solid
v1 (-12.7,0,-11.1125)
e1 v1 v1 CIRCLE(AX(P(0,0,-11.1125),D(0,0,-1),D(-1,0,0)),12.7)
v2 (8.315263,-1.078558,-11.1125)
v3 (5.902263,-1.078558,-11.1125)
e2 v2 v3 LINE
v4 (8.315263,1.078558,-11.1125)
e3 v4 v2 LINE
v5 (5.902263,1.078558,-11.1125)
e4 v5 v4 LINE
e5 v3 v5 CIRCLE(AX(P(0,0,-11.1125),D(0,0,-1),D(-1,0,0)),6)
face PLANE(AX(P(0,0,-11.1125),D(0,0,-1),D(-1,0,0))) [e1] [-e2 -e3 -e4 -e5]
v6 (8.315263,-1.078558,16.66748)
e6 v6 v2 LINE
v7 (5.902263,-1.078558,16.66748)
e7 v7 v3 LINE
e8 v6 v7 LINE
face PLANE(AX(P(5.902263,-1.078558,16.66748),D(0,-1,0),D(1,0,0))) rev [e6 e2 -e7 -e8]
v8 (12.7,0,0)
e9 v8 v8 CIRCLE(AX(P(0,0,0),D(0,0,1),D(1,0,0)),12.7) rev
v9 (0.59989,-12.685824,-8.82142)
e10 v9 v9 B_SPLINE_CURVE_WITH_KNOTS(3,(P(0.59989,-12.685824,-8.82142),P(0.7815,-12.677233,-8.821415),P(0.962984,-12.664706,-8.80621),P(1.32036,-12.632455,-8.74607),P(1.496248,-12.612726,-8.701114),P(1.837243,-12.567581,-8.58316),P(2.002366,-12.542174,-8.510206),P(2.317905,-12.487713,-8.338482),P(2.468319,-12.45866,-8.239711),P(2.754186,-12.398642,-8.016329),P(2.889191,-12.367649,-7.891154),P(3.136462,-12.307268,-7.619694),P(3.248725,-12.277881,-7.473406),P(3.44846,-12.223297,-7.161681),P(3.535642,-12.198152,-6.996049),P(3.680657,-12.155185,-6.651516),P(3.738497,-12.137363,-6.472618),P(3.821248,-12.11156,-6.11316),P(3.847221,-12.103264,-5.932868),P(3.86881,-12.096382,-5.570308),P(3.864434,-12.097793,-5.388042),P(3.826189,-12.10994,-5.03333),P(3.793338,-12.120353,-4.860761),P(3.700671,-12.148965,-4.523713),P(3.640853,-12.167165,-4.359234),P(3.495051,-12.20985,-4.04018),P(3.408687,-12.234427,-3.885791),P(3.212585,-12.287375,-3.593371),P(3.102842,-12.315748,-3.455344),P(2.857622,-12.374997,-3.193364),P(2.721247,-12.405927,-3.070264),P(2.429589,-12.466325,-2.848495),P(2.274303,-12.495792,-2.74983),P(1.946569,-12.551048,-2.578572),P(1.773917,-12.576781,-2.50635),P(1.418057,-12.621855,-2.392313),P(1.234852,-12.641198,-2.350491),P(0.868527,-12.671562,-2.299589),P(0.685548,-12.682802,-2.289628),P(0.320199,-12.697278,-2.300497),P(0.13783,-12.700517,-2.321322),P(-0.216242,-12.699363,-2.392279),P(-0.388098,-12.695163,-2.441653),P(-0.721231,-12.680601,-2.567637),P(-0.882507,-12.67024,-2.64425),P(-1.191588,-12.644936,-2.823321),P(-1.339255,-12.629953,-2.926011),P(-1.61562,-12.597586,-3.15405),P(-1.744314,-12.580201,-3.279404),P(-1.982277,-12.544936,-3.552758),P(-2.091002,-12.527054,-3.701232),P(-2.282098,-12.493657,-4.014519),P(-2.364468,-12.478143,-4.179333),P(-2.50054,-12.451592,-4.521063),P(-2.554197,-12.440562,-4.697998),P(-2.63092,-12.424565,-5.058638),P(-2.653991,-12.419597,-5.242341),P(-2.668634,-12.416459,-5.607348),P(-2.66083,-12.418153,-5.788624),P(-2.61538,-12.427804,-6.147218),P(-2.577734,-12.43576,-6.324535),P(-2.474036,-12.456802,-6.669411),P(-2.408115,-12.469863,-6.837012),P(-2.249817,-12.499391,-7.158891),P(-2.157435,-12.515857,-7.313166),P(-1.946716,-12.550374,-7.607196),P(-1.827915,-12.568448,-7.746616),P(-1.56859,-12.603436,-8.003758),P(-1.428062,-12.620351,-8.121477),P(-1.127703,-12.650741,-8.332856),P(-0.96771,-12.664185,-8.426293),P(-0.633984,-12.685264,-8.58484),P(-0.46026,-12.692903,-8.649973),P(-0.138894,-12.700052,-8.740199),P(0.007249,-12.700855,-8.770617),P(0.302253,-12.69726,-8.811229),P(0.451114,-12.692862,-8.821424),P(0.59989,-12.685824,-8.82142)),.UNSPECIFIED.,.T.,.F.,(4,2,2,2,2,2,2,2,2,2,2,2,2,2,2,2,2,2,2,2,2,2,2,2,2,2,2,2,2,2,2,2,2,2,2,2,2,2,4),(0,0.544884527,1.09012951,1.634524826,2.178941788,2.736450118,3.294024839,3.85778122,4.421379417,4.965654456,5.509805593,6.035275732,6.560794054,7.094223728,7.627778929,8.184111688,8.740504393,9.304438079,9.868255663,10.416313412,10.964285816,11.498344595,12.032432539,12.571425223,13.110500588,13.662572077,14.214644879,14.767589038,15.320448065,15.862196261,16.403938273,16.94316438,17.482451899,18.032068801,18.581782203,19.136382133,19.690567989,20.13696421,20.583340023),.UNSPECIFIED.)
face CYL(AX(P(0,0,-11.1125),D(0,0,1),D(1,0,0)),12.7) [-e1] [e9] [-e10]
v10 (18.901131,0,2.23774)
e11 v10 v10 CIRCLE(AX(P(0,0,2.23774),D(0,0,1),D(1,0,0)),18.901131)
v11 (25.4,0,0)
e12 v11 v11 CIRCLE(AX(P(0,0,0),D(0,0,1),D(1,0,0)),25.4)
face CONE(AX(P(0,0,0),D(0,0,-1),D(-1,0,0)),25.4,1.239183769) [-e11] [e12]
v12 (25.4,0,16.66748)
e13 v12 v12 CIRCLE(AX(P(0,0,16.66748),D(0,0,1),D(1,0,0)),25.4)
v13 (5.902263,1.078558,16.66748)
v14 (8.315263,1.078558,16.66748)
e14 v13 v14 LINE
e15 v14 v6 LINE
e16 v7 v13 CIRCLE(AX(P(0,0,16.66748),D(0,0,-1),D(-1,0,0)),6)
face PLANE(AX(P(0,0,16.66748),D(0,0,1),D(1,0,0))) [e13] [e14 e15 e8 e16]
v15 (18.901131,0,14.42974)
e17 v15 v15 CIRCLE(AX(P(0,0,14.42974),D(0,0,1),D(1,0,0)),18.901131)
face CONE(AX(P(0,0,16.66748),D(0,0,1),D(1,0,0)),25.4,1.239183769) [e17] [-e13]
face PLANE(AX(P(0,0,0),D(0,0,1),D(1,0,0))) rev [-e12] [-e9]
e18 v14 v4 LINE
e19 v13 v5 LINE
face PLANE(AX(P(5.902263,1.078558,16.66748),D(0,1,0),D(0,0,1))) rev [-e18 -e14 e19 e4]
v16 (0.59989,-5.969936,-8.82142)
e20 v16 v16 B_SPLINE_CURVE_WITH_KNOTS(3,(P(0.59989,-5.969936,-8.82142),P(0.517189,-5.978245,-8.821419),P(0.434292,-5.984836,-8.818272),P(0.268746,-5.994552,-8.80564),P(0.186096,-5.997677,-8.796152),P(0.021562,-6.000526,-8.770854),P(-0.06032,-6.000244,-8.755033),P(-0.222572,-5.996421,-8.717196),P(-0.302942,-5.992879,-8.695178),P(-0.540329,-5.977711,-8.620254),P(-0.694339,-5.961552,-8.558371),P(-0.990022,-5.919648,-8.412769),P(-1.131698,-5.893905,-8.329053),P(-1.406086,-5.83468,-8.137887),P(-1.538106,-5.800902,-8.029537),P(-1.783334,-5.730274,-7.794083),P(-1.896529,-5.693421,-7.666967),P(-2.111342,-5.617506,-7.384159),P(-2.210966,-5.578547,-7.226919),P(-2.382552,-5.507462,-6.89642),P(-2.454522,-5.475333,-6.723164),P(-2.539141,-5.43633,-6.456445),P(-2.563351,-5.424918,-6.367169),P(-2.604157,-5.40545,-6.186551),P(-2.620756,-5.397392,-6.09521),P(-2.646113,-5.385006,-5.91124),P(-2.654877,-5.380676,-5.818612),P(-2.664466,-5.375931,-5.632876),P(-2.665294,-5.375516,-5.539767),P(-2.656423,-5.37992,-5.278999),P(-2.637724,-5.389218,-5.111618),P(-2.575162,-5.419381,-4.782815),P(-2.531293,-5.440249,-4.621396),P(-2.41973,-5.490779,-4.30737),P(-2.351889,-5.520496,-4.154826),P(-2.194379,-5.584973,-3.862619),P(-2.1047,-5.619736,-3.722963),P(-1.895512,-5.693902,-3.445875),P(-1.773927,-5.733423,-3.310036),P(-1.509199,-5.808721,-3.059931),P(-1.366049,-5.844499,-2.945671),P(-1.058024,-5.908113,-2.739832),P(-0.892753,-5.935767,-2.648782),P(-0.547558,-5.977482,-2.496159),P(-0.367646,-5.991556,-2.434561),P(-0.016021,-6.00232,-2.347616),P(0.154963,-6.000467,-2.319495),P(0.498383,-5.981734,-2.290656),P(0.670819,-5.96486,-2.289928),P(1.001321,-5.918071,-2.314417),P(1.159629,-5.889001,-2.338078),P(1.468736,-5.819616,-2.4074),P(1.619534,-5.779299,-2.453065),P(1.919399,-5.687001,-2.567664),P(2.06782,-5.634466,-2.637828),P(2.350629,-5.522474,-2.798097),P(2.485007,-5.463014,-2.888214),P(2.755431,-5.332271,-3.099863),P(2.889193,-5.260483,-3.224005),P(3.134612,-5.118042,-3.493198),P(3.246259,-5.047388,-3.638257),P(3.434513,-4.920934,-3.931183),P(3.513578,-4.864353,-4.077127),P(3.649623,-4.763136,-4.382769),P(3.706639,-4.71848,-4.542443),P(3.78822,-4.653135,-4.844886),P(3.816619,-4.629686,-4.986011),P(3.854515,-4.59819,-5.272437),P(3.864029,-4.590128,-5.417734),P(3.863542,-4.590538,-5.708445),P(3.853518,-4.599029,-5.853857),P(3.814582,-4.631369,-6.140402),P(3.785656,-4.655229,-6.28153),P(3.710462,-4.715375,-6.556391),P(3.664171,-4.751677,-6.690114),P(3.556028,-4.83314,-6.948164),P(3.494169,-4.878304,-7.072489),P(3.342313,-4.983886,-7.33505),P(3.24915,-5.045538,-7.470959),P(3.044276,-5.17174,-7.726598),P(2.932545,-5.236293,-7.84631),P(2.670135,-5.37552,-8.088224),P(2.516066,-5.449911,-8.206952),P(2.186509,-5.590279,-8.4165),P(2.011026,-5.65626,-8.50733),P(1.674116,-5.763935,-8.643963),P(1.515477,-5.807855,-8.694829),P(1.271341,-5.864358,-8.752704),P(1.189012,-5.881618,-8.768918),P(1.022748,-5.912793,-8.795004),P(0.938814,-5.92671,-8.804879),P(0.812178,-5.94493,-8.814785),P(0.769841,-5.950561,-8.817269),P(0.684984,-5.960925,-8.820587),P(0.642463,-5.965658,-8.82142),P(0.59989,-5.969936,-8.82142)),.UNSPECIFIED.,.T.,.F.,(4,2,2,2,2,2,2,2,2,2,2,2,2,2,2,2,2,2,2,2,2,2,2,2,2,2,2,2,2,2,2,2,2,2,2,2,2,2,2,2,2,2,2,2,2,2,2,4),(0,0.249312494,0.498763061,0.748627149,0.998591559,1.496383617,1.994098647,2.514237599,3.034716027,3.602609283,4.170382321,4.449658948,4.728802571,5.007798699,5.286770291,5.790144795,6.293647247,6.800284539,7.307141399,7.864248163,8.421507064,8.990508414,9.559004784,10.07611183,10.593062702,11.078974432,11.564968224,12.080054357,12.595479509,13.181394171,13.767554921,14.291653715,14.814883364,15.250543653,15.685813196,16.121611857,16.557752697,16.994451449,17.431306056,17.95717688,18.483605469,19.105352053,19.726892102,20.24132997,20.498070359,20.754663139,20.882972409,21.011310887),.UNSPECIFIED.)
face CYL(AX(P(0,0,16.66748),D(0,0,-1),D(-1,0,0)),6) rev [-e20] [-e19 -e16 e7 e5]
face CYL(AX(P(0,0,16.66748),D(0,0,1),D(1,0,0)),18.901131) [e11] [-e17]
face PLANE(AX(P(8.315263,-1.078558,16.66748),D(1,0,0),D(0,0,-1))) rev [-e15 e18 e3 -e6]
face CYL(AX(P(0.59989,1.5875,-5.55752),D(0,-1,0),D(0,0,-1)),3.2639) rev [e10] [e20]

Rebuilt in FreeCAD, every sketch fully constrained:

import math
import FreeCAD as App
import Part
import Sketcher

V = App.Vector
Q = App.Units.Quantity

doc = App.newDocument("Part")
body = doc.addObject("PartDesign::Body", "Body")

sketch1 = body.newObject("Sketcher::SketchObject", "Sketch")
sketch1.AttachmentSupport = (doc.getObject("XY_Plane"), [""])
sketch1.MapMode = "FlatFace"
sketch1.addGeometry(Part.Circle(V(0, 0, 0), V(0, 0, 1), 25), False)
sketch1.addConstraint([
    Sketcher.Constraint("Coincident", 0, 3, -1, 1),
    Sketcher.Constraint("Diameter", 0, Q("2 in")),
])
pad1 = body.newObject("PartDesign::Pad", "Pad")
pad1.Profile = sketch1
pad1.Length = Q("0.6562 in")

sketch2 = body.newObject("Sketcher::SketchObject", "Sketch001")
sketch2.AttachmentSupport = (doc.getObject("XY_Plane"), [""])
sketch2.MapMode = "FlatFace"
sketch2.addGeometry(Part.Circle(V(0, 0, 0), V(0, 0, 1), 13), False)
sketch2.addConstraint([
    Sketcher.Constraint("Coincident", 0, 3, -1, 1),
    Sketcher.Constraint("Diameter", 0, Q("1 in")),
])
pad2 = body.newObject("PartDesign::Pad", "Pad001")
pad2.Profile = sketch2
pad2.Length = Q("0.4375 in")
pad2.Reversed = True

sketch3 = body.newObject("Sketcher::SketchObject", "Sketch002")
sketch3.AttachmentSupport = (doc.getObject("XY_Plane"), [""])
sketch3.MapMode = "FlatFace"
sketch3.AttachmentOffset = App.Placement(V(0, 0, -0.4375 * 25.4), App.Rotation())
sketch3.addGeometry([
    Part.LineSegment(V(8.3, -1.1, 0), V(5.9, -1.1, 0)),
    Part.ArcOfCircle(Part.Circle(V(0, 0, 0), V(0, 0, 1), 6), math.radians(10), math.radians(350)),
    Part.LineSegment(V(5.9, 1.1, 0), V(8.3, 1.1, 0)),
    Part.LineSegment(V(8.3, 1.1, 0), V(8.3, -1.1, 0)),
], False)
sketch3.addConstraint([
    Sketcher.Constraint("Coincident", 0, 2, 1, 2),
    Sketcher.Constraint("Coincident", 1, 1, 2, 1),
    Sketcher.Constraint("Coincident", 2, 2, 3, 1),
    Sketcher.Constraint("Coincident", 3, 2, 0, 1),
    Sketcher.Constraint("Horizontal", 0),
    Sketcher.Constraint("Horizontal", 2),
    Sketcher.Constraint("Vertical", 3),
    Sketcher.Constraint("Coincident", 1, 3, -1, 1),
    Sketcher.Constraint("Vertical", 0, 2, 1, 1),
    Sketcher.Constraint("DistanceX", 0, 2, 0, 1, Q("0.095 in")),
    Sketcher.Constraint("Radius", 1, 6.0),
    Sketcher.Constraint("DistanceY", 3, 2, 3, 1, 2.157116),
])
pocket1 = body.newObject("PartDesign::Pocket", "Pocket")
pocket1.Profile = sketch3
pocket1.Type = "ThroughAll"
pocket1.Reversed = True

sketch4 = body.newObject("Sketcher::SketchObject", "Sketch003")
sketch4.AttachmentSupport = (doc.getObject("XZ_Plane"), [""])
sketch4.MapMode = "FlatFace"
sketch4.AttachmentOffset = App.Placement(V(0, 0, 0.375 * 25.4), App.Rotation())
sketch4.addGeometry(Part.Circle(V(0.6, -5.6, 0), V(0, 0, 1), 3.3), False)
sketch4.addConstraint([
    Sketcher.Constraint("Diameter", 0, Q("0.257 in")),
    Sketcher.Constraint("DistanceY", 0, 3, -1, 1, Q("0.2188 in")),
    Sketcher.Constraint("DistanceX", -1, 1, 0, 3, 0.59989),
])
pocket2 = body.newObject("PartDesign::Pocket", "Pocket001")
pocket2.Profile = sketch4
pocket2.Type = "TwoLengths"
pocket2.Length = Q("0.4375 in")
pocket2.Length2 = Q("0.4375 in")

sketch5 = body.newObject("Sketcher::SketchObject", "Sketch004")
sketch5.AttachmentSupport = (doc.getObject("YZ_Plane"), [""])
sketch5.MapMode = "FlatFace"
sketch5.addGeometry([
    Part.LineSegment(V(25, 0, 0), V(25, 17, 0)),
    Part.LineSegment(V(25, 17, 0), V(19, 14, 0)),
    Part.LineSegment(V(19, 14, 0), V(19, 2, 0)),
    Part.LineSegment(V(19, 2, 0), V(25, 0, 0)),
], False)
sketch5.addConstraint([
    Sketcher.Constraint("Coincident", 0, 2, 1, 1),
    Sketcher.Constraint("Coincident", 1, 2, 2, 1),
    Sketcher.Constraint("Coincident", 2, 2, 3, 1),
    Sketcher.Constraint("Coincident", 3, 2, 0, 1),
    Sketcher.Constraint("Vertical", 0),
    Sketcher.Constraint("Vertical", 2),
    Sketcher.Constraint("PointOnObject", 3, 2, -1),
    Sketcher.Constraint("Equal", 1, 3),
    Sketcher.Constraint("DistanceX", -1, 1, 0, 2, Q("1 in")),
    Sketcher.Constraint("Angle", 1, Q("-161 deg")),
    Sketcher.Constraint("DistanceY", 2, 2, 2, 1, Q("0.48 in")),
    Sketcher.Constraint("DistanceY", 0, 1, 0, 2, Q("0.6562 in")),
])
groove = body.newObject("PartDesign::Groove", "Groove")
groove.Profile = sketch5
groove.ReferenceAxis = (sketch5, ["V_Axis"])
groove.Angle = 360

doc.recompute()
